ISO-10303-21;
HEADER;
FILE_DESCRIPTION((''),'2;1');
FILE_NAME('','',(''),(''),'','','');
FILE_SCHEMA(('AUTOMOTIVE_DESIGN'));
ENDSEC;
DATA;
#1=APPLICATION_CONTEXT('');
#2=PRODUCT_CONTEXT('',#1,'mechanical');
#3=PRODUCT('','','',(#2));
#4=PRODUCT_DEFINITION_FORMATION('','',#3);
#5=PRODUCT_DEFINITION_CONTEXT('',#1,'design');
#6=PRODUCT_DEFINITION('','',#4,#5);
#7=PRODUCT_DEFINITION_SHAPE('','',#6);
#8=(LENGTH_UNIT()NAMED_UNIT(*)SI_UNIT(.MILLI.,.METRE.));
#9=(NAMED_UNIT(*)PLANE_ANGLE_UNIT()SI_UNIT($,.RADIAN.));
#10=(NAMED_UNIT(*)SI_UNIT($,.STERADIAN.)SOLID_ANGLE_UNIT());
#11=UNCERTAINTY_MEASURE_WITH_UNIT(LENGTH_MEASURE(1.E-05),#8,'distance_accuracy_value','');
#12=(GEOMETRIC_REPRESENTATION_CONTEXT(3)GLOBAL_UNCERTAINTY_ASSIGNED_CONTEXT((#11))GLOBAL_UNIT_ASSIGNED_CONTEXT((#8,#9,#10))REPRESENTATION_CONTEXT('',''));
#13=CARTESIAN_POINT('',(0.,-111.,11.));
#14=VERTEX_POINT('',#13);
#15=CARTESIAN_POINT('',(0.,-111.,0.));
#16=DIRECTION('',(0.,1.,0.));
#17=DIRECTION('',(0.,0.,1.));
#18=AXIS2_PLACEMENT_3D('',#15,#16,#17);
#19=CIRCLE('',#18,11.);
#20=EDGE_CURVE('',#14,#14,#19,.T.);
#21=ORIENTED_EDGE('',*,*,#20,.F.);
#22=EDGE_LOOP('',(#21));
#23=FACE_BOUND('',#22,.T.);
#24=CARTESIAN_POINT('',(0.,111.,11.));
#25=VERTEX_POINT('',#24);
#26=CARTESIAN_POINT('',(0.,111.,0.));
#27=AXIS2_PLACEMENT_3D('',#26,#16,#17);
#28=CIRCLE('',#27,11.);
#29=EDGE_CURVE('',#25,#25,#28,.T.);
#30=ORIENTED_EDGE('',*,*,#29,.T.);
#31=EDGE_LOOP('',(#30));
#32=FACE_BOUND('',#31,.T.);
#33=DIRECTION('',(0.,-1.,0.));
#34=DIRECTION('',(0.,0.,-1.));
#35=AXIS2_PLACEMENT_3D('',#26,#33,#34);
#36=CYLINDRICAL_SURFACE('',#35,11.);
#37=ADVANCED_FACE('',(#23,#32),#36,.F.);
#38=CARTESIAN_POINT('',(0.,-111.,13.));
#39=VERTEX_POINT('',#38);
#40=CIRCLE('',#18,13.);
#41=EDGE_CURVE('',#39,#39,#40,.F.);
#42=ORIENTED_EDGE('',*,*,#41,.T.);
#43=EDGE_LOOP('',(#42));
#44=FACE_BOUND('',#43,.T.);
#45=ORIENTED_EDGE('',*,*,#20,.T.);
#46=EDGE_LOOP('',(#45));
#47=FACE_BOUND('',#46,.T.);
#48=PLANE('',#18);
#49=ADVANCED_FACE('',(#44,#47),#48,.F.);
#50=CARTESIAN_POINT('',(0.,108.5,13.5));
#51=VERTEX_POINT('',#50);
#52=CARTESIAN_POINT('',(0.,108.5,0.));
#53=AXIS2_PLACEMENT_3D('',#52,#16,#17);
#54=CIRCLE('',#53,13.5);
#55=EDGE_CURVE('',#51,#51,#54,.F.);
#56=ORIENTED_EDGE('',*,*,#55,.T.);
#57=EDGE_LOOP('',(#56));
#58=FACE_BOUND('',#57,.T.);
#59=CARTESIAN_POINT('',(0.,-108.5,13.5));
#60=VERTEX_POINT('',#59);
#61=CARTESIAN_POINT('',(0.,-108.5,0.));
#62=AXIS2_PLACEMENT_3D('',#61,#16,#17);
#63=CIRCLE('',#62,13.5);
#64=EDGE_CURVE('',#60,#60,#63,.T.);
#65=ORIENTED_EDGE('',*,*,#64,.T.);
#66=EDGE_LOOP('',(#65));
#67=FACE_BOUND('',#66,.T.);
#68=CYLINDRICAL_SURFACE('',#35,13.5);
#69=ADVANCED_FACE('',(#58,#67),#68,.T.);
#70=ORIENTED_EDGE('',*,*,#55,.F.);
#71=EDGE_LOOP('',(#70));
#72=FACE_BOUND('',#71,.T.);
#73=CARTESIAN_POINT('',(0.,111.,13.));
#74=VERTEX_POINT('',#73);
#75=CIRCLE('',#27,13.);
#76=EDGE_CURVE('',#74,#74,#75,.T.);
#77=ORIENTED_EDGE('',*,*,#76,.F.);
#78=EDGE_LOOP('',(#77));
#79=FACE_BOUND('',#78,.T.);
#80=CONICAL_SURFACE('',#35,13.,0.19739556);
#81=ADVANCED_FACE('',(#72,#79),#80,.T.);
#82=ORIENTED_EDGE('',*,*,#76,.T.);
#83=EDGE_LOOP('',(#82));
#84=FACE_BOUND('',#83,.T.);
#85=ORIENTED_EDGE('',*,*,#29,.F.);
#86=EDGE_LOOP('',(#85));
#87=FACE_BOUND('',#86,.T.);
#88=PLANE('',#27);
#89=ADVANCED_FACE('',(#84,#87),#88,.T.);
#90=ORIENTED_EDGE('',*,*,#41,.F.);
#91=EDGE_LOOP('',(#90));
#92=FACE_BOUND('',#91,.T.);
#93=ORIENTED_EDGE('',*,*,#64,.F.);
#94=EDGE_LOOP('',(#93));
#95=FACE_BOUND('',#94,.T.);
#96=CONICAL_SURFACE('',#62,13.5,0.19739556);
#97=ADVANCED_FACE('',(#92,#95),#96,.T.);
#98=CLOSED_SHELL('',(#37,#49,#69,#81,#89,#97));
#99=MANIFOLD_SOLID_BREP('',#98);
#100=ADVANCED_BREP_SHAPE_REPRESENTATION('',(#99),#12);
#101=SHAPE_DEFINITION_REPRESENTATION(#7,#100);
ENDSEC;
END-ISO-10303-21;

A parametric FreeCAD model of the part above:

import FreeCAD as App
import Part
import Sketcher


def edges_at(feature, points):
    """Names of the edges that pass closest to the given points."""
    edges = feature.Shape.Edges
    near = lambda p: min(range(len(edges)), key=lambda i: edges[i].distToShape(Part.Vertex(*p))[0])
    return sorted({f"Edge{near(p) + 1}" for p in points})

doc = App.newDocument("Part")
body = doc.addObject("PartDesign::Body", "Body")

# Sketch on XZ plane
sketch1 = body.newObject("Sketcher::SketchObject", "Sketch")
sketch1.AttachmentSupport = (doc.getObject("XZ_Plane"), [""])
sketch1.MapMode = "FlatFace"
sketch1.addGeometry(Part.Circle(App.Vector(0, 0, 0), App.Vector(0, 0, 1), 14), False)
sketch1.addGeometry(Part.Circle(App.Vector(0, 0, 0), App.Vector(0, 0, 1), 11), False)
sketch1.addConstraint(Sketcher.Constraint("Coincident", 0, 3, -1, 1))
sketch1.addConstraint(Sketcher.Constraint("Coincident", 1, 3, -1, 1))
sketch1.addConstraint(Sketcher.Constraint("Diameter", 0, 27.0))
sketch1.addConstraint(Sketcher.Constraint("Diameter", 1, 22.0))
pad1 = body.newObject("PartDesign::Pad", "Pad")
pad1.Profile = sketch1
pad1.Length = 222
pad1.Midplane = True
doc.recompute()

chamfer = body.newObject("PartDesign::Chamfer", "Chamfer")
chamfer.Base = (pad1, edges_at(pad1, [(0, -111, -13.5)]))
chamfer.ChamferType = "Two distances"
chamfer.Size = 2.5
chamfer.Size2 = 0.5
doc.recompute()

chamfer2 = body.newObject("PartDesign::Chamfer", "Chamfer001")
chamfer2.Base = (chamfer, edges_at(chamfer, [(0, 111, -13.5)]))
chamfer2.ChamferType = "Two distances"
chamfer2.Size = 2.5
chamfer2.Size2 = 0.5

doc.recompute()
